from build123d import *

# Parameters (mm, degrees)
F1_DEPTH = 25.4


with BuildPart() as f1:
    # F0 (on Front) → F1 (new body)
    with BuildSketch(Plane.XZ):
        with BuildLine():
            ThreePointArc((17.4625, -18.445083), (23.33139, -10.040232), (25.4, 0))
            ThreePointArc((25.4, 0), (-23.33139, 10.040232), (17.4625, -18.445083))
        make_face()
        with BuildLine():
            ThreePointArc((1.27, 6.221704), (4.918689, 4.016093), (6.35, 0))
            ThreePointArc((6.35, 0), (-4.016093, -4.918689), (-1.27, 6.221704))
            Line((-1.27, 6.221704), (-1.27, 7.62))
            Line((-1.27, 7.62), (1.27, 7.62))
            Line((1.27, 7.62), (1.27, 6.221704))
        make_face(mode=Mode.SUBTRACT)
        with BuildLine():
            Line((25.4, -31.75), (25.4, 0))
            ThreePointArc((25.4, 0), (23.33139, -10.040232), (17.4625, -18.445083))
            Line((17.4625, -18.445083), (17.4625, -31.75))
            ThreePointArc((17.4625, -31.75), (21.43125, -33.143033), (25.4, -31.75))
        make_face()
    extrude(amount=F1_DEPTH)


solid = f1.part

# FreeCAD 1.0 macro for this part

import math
import FreeCAD as App
import Part
import Sketcher
from FreeCAD import Vector
Q = App.Units.Quantity

doc = App.newDocument("Part")
body = doc.addObject("PartDesign::Body", "Body")

# Sketch on XZ plane
sketch1 = doc.addObject("Sketcher::SketchObject", "Sketch")
body.addObject(sketch1)
sketch1.AttachmentSupport = (doc.XZ_Plane, [""])
sketch1.MapMode = "FlatFace"
sketch1.addGeometry([
    Part.ArcOfCircle(Part.Circle(Vector(0, 0, 0), Vector(0, 0, 1), 25.4), math.radians(0), math.radians(313)),  # 0
    Part.LineSegment(Vector(17.5, -18.4, 0), Vector(17.5, -31.8, 0)),  # 1
    Part.ArcOfCircle(Part.Circle(Vector(21.4, -26.8, 0), Vector(0, 0, 1), 6.3), math.radians(-129), math.radians(-51)),  # 2
    Part.LineSegment(Vector(25.4, -31.8, 0), Vector(25.4, 0, 0)),  # 3
    Part.LineSegment(Vector(1.3, 7.6, 0), Vector(1.3, 6.2, 0)),  # 4
    Part.ArcOfCircle(Part.Circle(Vector(0, 0, 0), Vector(0, 0, 1), 6.3), math.radians(0), math.radians(78)),  # 5
    Part.ArcOfCircle(Part.Circle(Vector(0, 0, 0), Vector(0, 0, 1), 6.4), math.radians(102), math.radians(360)),  # 6
    Part.LineSegment(Vector(-1.3, 6.2, 0), Vector(-1.3, 7.6, 0)),  # 7
    Part.LineSegment(Vector(-1.3, 7.6, 0), Vector(1.3, 7.6, 0)),  # 8
], False)
sketch1.addConstraint([
    Sketcher.Constraint("Coincident", 0, 2, 1, 1),
    Sketcher.Constraint("Coincident", 1, 2, 2, 1),
    Sketcher.Constraint("Coincident", 2, 2, 3, 1),
    Sketcher.Constraint("Tangent", 3, 2, 0, 1),
    Sketcher.Constraint("Coincident", 4, 2, 5, 2),
    Sketcher.Constraint("Tangent", 5, 1, 6, 2),
    Sketcher.Constraint("Coincident", 6, 1, 7, 1),
    Sketcher.Constraint("Coincident", 7, 2, 8, 1),
    Sketcher.Constraint("Coincident", 8, 2, 4, 1),
    Sketcher.Constraint("Vertical", 1),
    Sketcher.Constraint("Vertical", 3),
    Sketcher.Constraint("Vertical", 4),
    Sketcher.Constraint("Vertical", 7),
    Sketcher.Constraint("Horizontal", 8),
    Sketcher.Constraint("Coincident", 0, 3, -1, 1),
    Sketcher.Constraint("Coincident", 5, 3, -1, 1),
    Sketcher.Constraint("Equal", 2, 5),
    Sketcher.Constraint("Equal", 5, 6),
    Sketcher.Constraint("PointOnObject", 5, 1, -1),
    Sketcher.Constraint("Horizontal", 1, 2, 2, 2),
    Sketcher.Constraint("Horizontal", 4, 2, 6, 1),
    Sketcher.Constraint("Radius", 0, Q("1 in")),
    Sketcher.Constraint("Radius", 2, Q("0.25 in")),
    Sketcher.Constraint("DistanceX", 8, 1, 8, 2, Q("0.1 in")),
    Sketcher.Constraint("DistanceY", 3, 1, 3, 2, Q("1.25 in")),
    Sketcher.Constraint("DistanceY", -1, 1, 7, 2, Q("0.3 in")),
    Sketcher.Constraint("DistanceX", -1, 1, 2, 3, Q("0.84375 in")),
])
pad1 = doc.addObject("PartDesign::Pad", "Pad")
body.addObject(pad1)
pad1.Profile = sketch1
pad1.Length = Q("1 in")

doc.recompute()
